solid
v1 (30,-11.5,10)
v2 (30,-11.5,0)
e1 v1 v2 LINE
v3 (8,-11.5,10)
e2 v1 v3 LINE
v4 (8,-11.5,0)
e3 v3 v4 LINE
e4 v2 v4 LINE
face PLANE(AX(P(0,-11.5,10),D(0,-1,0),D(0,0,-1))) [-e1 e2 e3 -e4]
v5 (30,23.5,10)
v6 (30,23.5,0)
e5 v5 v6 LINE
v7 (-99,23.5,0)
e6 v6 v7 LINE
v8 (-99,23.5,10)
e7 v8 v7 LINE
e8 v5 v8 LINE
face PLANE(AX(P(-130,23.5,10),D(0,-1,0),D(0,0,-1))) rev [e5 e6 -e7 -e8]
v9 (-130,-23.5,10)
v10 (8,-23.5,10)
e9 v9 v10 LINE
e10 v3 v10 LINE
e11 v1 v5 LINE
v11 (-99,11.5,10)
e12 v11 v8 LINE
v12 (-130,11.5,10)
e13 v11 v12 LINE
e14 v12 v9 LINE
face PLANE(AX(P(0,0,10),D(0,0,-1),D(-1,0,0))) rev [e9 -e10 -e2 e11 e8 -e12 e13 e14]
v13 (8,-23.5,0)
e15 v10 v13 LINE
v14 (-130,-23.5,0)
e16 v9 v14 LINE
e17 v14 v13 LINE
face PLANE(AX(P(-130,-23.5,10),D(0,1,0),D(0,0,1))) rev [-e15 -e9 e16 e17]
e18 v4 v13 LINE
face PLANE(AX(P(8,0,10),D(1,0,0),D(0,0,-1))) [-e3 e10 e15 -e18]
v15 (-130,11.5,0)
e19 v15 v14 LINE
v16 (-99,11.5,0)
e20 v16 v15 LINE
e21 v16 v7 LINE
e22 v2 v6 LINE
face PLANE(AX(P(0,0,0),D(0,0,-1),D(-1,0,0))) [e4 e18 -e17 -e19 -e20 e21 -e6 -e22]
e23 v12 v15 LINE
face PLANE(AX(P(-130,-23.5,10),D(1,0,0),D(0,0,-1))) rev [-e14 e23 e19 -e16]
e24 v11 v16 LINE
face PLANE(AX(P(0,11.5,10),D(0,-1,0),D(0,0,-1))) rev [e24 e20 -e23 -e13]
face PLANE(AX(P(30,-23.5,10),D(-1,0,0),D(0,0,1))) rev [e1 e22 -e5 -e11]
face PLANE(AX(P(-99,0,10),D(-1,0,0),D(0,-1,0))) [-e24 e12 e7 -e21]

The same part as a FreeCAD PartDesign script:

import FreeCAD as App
import Part
import Sketcher

V = App.Vector
Q = App.Units.Quantity

doc = App.newDocument("Part")
params = doc.addObject("Spreadsheet::Sheet", "Params")
for row, (alias, value) in enumerate([
    ("sketch1_width", "160 mm"),
    ("sketch1_height", "47 mm"),
    ("pad1_length", "10 mm"),
    ("sketch2_width", "31 mm"),
    ("sketch2_width2", "22 mm"),
    ("sketch2_height", "12 mm"),
    ("pocket1_length", "10 mm"),
], start=1):
    params.set(f"A{row}", alias)
    params.set(f"B{row}", "=" + value)
    params.setAlias(f"B{row}", alias)

body = doc.addObject("PartDesign::Body", "Body")

# Sketch on XY plane
sketch1 = doc.addObject("Sketcher::SketchObject", "Sketch")
body.addObject(sketch1)
sketch1.AttachmentSupport = (doc.XY_Plane, [""])
sketch1.MapMode = "FlatFace"
sketch1.addGeometry(Part.LineSegment(V(-130, 24, 0), V(-130, -24, 0)), False)
sketch1.addGeometry(Part.LineSegment(V(-130, -24, 0), V(30, -24, 0)), False)
sketch1.addGeometry(Part.LineSegment(V(30, -24, 0), V(30, 24, 0)), False)
sketch1.addGeometry(Part.LineSegment(V(30, 24, 0), V(-130, 24, 0)), False)
sketch1.addConstraint(Sketcher.Constraint("Coincident", 0, 2, 1, 1))
sketch1.addConstraint(Sketcher.Constraint("Coincident", 1, 2, 2, 1))
sketch1.addConstraint(Sketcher.Constraint("Coincident", 2, 2, 3, 1))
sketch1.addConstraint(Sketcher.Constraint("Coincident", 3, 2, 0, 1))
sketch1.addConstraint(Sketcher.Constraint("Vertical", 0))
sketch1.addConstraint(Sketcher.Constraint("Horizontal", 1))
sketch1.addConstraint(Sketcher.Constraint("Vertical", 2))
sketch1.addConstraint(Sketcher.Constraint("Horizontal", 3))
sketch1.addConstraint(Sketcher.Constraint("DistanceX", 1, 1, 1, 2, Q("160 mm")))
sketch1.addConstraint(Sketcher.Constraint("DistanceY", 0, 2, 0, 1, Q("47 mm")))
sketch1.addConstraint(Sketcher.Constraint("DistanceX", 0, 2, -1, 1, Q("130 mm")))
sketch1.addConstraint(Sketcher.Constraint("DistanceY", 0, 2, -1, 1, Q("23.5 mm")))
sketch1.setExpression("Constraints[8]", "Params.sketch1_width")
sketch1.setExpression("Constraints[9]", "Params.sketch1_height")
pad1 = doc.addObject("PartDesign::Pad", "Pad")
body.addObject(pad1)
pad1.Profile = sketch1
pad1.setExpression("Length", "Params.pad1_length")

# Sketch on XY plane
sketch2 = doc.addObject("Sketcher::SketchObject", "Sketch001")
body.addObject(sketch2)
sketch2.AttachmentSupport = (doc.XY_Plane, [""])
sketch2.MapMode = "FlatFace"
sketch2.addGeometry(Part.LineSegment(V(-99, 24, 0), V(-99, 12, 0)), False)
sketch2.addGeometry(Part.LineSegment(V(-99, 12, 0), V(-130, 12, 0)), False)
sketch2.addGeometry(Part.LineSegment(V(-130, 12, 0), V(-130, 24, 0)), False)
sketch2.addGeometry(Part.LineSegment(V(-130, 24, 0), V(-99, 24, 0)), False)
sketch2.addGeometry(Part.LineSegment(V(30, -12, 0), V(30, -24, 0)), False)
sketch2.addGeometry(Part.LineSegment(V(30, -24, 0), V(8, -24, 0)), False)
sketch2.addGeometry(Part.LineSegment(V(8, -24, 0), V(8, -12, 0)), False)
sketch2.addGeometry(Part.LineSegment(V(8, -12, 0), V(30, -12, 0)), False)
sketch2.addConstraint(Sketcher.Constraint("Coincident", 0, 2, 1, 1))
sketch2.addConstraint(Sketcher.Constraint("Coincident", 1, 2, 2, 1))
sketch2.addConstraint(Sketcher.Constraint("Coincident", 2, 2, 3, 1))
sketch2.addConstraint(Sketcher.Constraint("Coincident", 3, 2, 0, 1))
sketch2.addConstraint(Sketcher.Constraint("Coincident", 4, 2, 5, 1))
sketch2.addConstraint(Sketcher.Constraint("Coincident", 5, 2, 6, 1))
sketch2.addConstraint(Sketcher.Constraint("Coincident", 6, 2, 7, 1))
sketch2.addConstraint(Sketcher.Constraint("Coincident", 7, 2, 4, 1))
sketch2.addConstraint(Sketcher.Constraint("Vertical", 0))
sketch2.addConstraint(Sketcher.Constraint("Horizontal", 1))
sketch2.addConstraint(Sketcher.Constraint("Vertical", 2))
sketch2.addConstraint(Sketcher.Constraint("Horizontal", 3))
sketch2.addConstraint(Sketcher.Constraint("Vertical", 4))
sketch2.addConstraint(Sketcher.Constraint("Horizontal", 5))
sketch2.addConstraint(Sketcher.Constraint("Vertical", 6))
sketch2.addConstraint(Sketcher.Constraint("Horizontal", 7))
sketch2.addConstraint(Sketcher.Constraint("Equal", 2, 4))
sketch2.addConstraint(Sketcher.Constraint("DistanceX", 1, 2, 1, 1, Q("31 mm")))
sketch2.addConstraint(Sketcher.Constraint("DistanceX", 5, 2, 5, 1, Q("22 mm")))
sketch2.addConstraint(Sketcher.Constraint("DistanceY", 0, 2, 0, 1, Q("12 mm")))
sketch2.addConstraint(Sketcher.Constraint("DistanceX", 0, 2, -1, 1, Q("99 mm")))
sketch2.addConstraint(Sketcher.Constraint("DistanceX", -1, 1, 4, 2, Q("30 mm")))
sketch2.addConstraint(Sketcher.Constraint("DistanceY", 4, 2, 0, 2, Q("35 mm")))
sketch2.addConstraint(Sketcher.Constraint("DistanceY", -1, 1, 0, 2, Q("11.5 mm")))
sketch2.setExpression("Constraints[17]", "Params.sketch2_width")
sketch2.setExpression("Constraints[18]", "Params.sketch2_width2")
sketch2.setExpression("Constraints[19]", "Params.sketch2_height")
pocket1 = doc.addObject("PartDesign::Pocket", "Pocket")
body.addObject(pocket1)
pocket1.Profile = sketch2
pocket1.setExpression("Length", "Params.pocket1_length")
pocket1.Reversed = True

doc.recompute()
